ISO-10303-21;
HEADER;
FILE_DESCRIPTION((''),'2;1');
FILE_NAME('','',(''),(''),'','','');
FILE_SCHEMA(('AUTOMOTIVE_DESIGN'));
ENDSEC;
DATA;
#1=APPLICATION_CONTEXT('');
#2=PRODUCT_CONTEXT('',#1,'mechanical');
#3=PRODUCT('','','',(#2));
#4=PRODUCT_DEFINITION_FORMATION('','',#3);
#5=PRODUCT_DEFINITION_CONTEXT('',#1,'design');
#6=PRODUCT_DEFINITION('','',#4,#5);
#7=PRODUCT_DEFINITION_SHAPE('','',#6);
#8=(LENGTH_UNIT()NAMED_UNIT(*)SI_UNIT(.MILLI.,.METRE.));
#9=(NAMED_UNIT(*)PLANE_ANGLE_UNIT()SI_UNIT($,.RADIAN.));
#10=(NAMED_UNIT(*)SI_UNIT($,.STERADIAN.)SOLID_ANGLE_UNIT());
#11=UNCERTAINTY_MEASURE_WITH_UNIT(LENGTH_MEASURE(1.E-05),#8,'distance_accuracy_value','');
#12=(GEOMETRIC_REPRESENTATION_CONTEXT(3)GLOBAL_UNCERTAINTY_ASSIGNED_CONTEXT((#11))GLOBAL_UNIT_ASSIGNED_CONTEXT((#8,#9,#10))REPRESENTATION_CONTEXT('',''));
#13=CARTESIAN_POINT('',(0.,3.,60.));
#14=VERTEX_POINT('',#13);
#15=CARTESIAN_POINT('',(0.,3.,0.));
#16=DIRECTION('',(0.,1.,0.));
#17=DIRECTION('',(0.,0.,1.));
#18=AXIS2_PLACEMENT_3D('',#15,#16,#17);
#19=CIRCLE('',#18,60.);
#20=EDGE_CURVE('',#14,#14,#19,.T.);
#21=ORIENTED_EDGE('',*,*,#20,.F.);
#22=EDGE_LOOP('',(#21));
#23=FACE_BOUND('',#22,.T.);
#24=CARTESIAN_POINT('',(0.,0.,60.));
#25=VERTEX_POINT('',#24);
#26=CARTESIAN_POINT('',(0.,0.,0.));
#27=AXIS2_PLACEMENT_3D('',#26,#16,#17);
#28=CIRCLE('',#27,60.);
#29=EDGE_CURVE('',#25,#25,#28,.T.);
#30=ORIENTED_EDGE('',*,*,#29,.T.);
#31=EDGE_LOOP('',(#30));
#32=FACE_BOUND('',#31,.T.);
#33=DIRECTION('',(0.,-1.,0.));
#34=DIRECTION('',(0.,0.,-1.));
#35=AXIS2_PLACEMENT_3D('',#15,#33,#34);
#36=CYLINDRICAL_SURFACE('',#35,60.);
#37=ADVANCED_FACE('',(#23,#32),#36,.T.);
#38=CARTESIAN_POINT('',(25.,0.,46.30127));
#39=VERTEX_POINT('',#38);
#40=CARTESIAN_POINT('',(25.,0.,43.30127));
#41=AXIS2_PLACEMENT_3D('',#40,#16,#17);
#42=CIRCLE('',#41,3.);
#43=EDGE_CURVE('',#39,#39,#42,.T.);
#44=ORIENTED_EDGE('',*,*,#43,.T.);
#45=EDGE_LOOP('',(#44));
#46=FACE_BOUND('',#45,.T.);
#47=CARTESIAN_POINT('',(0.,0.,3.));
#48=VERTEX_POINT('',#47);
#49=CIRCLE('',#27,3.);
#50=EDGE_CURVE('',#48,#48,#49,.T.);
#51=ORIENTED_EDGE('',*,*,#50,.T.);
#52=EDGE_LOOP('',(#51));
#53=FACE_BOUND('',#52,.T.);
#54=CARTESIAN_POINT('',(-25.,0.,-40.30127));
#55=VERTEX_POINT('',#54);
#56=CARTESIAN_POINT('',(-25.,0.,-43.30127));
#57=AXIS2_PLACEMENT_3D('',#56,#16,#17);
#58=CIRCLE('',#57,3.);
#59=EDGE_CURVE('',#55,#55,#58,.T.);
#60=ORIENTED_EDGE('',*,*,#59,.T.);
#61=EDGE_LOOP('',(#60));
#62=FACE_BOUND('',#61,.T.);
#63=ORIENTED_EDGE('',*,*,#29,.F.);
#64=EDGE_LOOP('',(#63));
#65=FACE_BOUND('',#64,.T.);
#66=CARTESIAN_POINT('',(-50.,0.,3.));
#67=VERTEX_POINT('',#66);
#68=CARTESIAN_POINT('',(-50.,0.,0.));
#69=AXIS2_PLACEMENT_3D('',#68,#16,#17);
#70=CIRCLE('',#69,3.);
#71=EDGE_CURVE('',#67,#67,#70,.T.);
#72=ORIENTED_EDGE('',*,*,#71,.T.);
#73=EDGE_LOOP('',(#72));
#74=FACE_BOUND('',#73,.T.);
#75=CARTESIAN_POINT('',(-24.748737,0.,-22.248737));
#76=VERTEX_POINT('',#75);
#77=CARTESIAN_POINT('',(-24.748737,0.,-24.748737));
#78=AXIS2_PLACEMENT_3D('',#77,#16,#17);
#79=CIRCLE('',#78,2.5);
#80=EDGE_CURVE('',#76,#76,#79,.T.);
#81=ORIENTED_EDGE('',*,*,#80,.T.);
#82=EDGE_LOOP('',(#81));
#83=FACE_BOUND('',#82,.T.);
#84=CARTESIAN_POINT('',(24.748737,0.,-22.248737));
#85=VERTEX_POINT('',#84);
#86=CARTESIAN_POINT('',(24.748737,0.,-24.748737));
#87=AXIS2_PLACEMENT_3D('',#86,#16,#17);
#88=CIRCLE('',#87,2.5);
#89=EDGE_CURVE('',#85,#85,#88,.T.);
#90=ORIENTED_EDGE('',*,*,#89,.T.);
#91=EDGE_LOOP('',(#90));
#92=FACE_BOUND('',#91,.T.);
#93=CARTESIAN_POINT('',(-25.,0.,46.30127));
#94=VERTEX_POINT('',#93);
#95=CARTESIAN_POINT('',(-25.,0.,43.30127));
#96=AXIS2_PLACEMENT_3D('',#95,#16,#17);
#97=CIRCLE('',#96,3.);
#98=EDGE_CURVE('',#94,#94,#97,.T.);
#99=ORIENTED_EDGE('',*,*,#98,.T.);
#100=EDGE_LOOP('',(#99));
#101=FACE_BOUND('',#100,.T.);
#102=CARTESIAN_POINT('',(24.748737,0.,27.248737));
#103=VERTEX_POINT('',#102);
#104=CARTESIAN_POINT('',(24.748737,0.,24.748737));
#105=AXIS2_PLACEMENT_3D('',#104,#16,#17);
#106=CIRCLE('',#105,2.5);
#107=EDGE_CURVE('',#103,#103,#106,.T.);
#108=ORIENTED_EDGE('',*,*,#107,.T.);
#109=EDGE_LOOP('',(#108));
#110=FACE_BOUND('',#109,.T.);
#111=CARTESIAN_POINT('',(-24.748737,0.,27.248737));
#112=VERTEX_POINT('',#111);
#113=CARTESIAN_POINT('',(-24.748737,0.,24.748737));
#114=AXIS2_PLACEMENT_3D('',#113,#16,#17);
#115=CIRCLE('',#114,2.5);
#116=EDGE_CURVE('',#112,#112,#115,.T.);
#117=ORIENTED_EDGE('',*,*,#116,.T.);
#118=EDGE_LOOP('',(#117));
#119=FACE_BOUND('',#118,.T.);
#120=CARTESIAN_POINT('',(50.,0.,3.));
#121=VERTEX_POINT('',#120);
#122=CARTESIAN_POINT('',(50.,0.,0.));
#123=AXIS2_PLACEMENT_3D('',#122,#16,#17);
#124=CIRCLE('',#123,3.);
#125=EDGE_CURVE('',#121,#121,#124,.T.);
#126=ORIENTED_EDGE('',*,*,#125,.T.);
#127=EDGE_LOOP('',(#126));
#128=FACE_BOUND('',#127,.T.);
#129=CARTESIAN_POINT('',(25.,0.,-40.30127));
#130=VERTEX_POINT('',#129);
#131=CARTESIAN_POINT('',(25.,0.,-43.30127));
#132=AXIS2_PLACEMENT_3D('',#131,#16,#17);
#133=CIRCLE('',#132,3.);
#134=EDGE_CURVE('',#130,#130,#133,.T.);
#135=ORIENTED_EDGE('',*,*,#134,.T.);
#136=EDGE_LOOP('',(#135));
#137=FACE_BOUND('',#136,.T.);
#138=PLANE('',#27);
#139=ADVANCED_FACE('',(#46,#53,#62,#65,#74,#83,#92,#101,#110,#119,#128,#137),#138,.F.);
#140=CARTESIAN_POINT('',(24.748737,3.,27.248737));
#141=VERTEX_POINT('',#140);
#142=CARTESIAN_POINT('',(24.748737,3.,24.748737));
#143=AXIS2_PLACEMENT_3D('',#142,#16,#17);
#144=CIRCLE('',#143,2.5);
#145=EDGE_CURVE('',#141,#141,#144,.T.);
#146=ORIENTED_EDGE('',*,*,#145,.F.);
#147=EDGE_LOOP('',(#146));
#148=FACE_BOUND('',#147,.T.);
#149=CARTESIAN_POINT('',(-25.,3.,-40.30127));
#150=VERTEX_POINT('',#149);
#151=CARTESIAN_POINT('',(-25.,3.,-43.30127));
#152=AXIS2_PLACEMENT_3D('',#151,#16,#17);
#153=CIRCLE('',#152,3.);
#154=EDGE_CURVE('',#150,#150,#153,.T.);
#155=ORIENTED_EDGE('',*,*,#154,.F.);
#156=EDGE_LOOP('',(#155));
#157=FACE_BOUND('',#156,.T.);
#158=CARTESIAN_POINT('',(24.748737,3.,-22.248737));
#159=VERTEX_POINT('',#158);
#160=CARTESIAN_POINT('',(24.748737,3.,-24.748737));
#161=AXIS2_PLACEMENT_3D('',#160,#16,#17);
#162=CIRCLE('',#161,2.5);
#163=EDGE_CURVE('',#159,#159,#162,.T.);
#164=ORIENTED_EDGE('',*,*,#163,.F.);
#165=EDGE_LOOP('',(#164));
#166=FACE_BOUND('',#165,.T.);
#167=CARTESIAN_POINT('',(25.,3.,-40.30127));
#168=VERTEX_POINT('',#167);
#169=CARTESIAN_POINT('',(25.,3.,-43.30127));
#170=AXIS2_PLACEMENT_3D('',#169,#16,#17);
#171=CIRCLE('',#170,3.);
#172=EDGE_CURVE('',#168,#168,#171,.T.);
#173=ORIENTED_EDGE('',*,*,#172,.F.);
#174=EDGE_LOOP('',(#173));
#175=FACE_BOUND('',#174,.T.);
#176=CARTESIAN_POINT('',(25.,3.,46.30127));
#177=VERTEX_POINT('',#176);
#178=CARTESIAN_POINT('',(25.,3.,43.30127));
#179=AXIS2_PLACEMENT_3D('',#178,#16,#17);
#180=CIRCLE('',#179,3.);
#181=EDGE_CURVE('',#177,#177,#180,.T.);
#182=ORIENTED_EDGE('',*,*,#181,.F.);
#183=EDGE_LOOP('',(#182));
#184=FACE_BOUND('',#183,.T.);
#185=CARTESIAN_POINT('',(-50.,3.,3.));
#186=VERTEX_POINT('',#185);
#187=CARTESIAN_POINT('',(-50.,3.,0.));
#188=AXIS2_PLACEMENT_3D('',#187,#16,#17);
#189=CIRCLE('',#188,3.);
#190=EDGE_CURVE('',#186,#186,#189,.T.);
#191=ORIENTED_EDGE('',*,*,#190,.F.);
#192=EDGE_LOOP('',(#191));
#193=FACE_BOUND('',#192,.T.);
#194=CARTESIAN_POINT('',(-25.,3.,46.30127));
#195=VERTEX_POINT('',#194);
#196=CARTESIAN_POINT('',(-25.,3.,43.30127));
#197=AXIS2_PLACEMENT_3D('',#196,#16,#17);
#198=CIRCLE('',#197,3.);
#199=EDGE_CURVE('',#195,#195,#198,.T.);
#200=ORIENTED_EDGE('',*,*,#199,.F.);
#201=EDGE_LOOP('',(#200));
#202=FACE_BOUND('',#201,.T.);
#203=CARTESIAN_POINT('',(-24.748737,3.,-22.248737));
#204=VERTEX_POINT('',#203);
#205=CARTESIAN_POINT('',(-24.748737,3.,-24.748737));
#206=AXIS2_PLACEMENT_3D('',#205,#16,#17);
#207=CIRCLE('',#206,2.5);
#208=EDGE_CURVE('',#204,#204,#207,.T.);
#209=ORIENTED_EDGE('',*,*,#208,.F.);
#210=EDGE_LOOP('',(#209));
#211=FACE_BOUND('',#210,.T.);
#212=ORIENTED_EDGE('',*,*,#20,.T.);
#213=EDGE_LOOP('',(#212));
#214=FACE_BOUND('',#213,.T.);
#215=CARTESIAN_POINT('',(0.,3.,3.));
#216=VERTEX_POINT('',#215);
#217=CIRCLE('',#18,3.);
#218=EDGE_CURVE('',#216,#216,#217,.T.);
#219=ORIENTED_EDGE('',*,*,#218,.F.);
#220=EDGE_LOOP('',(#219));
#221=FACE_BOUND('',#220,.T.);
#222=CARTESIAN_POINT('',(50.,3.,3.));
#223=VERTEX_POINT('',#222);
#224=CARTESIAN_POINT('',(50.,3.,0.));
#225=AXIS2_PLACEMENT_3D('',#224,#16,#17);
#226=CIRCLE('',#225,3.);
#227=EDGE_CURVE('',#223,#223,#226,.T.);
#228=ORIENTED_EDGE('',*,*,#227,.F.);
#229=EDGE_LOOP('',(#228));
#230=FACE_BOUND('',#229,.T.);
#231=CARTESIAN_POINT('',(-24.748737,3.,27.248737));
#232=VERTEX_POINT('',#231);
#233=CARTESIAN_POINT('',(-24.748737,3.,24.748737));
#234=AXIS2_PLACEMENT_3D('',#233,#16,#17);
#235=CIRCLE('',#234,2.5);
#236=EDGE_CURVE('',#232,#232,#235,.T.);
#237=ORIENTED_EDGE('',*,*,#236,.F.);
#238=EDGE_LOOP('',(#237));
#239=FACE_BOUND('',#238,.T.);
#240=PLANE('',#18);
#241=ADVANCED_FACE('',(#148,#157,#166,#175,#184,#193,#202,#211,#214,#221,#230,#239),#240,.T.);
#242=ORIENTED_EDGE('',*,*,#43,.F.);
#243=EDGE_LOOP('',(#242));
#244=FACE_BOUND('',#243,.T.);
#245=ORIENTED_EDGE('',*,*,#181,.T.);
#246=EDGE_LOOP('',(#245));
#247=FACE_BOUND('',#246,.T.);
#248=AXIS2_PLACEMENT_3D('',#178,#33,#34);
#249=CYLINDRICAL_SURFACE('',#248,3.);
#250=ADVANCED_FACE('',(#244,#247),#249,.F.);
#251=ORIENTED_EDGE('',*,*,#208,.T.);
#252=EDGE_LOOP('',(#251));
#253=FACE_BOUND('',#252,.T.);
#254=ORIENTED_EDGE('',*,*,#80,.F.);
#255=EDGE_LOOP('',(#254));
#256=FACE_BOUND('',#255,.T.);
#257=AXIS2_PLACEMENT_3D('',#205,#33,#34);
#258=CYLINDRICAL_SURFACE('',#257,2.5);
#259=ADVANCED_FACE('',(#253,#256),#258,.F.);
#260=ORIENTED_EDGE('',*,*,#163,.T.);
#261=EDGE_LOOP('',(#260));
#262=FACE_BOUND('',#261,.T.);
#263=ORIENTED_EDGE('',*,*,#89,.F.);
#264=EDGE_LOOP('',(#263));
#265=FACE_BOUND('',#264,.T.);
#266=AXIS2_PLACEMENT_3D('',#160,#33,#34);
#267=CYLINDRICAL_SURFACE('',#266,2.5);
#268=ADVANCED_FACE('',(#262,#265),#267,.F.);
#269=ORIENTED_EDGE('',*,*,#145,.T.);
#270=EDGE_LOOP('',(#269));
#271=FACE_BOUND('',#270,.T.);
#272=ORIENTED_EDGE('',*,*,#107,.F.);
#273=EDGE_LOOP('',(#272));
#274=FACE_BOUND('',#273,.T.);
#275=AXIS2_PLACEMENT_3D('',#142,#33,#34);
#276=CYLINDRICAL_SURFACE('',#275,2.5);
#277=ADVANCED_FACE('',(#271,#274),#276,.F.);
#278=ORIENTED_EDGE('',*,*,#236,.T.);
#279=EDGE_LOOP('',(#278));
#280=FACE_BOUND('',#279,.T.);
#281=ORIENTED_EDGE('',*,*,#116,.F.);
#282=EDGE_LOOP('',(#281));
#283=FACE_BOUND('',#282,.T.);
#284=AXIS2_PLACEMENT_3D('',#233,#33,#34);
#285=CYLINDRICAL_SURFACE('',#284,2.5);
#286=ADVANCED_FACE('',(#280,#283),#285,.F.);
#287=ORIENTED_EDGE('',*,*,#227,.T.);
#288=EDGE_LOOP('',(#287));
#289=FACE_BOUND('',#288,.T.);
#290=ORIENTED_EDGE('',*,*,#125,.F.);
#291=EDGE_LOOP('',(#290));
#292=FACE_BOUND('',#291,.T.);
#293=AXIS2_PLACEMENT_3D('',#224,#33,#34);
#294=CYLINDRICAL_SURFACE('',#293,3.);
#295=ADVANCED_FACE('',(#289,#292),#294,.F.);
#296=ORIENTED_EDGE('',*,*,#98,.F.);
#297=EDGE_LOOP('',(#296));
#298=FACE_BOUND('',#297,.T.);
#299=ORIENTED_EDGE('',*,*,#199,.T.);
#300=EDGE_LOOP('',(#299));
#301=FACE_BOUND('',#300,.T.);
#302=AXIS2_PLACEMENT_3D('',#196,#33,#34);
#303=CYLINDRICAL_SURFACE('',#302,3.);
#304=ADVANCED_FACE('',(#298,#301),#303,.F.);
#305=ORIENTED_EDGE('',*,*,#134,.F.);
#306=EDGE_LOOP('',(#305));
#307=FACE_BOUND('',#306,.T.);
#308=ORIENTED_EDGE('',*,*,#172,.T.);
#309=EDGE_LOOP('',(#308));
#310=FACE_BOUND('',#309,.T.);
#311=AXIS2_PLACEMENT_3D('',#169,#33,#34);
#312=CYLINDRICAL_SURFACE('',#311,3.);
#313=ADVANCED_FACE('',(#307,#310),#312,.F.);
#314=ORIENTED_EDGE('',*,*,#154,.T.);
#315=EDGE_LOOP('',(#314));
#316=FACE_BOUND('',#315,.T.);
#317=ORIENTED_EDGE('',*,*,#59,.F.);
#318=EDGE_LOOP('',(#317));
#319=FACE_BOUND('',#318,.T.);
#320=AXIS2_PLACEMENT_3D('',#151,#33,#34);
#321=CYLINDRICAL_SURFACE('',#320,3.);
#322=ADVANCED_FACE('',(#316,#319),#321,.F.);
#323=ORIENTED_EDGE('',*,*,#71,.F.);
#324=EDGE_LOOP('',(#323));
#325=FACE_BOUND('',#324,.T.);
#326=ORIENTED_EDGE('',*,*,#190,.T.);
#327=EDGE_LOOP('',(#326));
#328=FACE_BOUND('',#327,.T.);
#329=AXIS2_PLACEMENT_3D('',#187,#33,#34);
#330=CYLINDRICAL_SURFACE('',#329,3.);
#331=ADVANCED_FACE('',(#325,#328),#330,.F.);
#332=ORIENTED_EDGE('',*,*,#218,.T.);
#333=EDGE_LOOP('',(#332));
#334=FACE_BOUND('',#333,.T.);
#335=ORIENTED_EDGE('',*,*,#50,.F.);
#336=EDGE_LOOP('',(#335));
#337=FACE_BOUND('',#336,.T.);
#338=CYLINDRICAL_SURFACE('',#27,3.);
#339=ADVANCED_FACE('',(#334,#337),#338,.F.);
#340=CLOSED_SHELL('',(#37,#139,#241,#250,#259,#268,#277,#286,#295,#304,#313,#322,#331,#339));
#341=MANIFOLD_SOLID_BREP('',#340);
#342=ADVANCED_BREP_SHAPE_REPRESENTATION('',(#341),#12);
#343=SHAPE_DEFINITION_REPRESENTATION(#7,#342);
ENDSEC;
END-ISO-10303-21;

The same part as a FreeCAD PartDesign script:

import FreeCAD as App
import Part
import Sketcher
from FreeCAD import Vector
Q = App.Units.Quantity

doc = App.newDocument("Part")
body = doc.addObject("PartDesign::Body", "Body")

# Sketch on XZ plane
sketch1 = body.newObject("Sketcher::SketchObject", "Sketch")
sketch1.AttachmentSupport = (doc.getObject("XZ_Plane"), [""])
sketch1.MapMode = "FlatFace"
sketch1.addGeometry([
    Part.Circle(Vector(0, 0, 0), Vector(0, 0, 1), 60),  # 0
    Part.Circle(Vector(-25, -43.3, 0), Vector(0, 0, 1), 3),  # 1
    Part.Circle(Vector(-24.7, -24.7, 0), Vector(0, 0, 1), 2.5),  # 2
    Part.Circle(Vector(-50, 0, 0), Vector(0, 0, 1), 3),  # 3
    Part.Circle(Vector(-24.7, 24.7, 0), Vector(0, 0, 1), 2.5),  # 4
    Part.Circle(Vector(-25, 43.3, 0), Vector(0, 0, 1), 3),  # 5
    Part.Circle(Vector(25, -43.3, 0), Vector(0, 0, 1), 3),  # 6
    Part.Circle(Vector(24.7, -24.7, 0), Vector(0, 0, 1), 2.5),  # 7
    Part.Circle(Vector(50, 0, 0), Vector(0, 0, 1), 3),  # 8
    Part.Circle(Vector(24.7, 24.7, 0), Vector(0, 0, 1), 2.5),  # 9
    Part.Circle(Vector(25, 43.3, 0), Vector(0, 0, 1), 3),  # 10
], False)
sketch1.addConstraint([
    Sketcher.Constraint("Coincident", 0, 3, -1, 1),
    Sketcher.Constraint("Equal", 1, 3),
    Sketcher.Constraint("Equal", 2, 4),
    Sketcher.Constraint("Equal", 3, 5),
    Sketcher.Constraint("Equal", 5, 6),
    Sketcher.Constraint("Equal", 4, 7),
    Sketcher.Constraint("Equal", 6, 8),
    Sketcher.Constraint("Equal", 7, 9),
    Sketcher.Constraint("Equal", 8, 10),
    Sketcher.Constraint("Symmetric", 5, 3, 6, 3, -1, 1),
    Sketcher.Constraint("Symmetric", 4, 3, 7, 3, -1, 1),
    Sketcher.Constraint("Symmetric", 3, 3, 8, 3, -1, 1),
    Sketcher.Constraint("Symmetric", 2, 3, 9, 3, -1, 1),
    Sketcher.Constraint("Symmetric", 1, 3, 10, 3, -1, 1),
    Sketcher.Constraint("Symmetric", 1, 3, 6, 3, -2),
    Sketcher.Constraint("Symmetric", 2, 3, 7, 3, -2),
    Sketcher.Constraint("PointOnObject", 3, 3, -1),
    Sketcher.Constraint("Diameter", 0, Q("120 mm")),
    Sketcher.Constraint("Diameter", 1, Q("6 mm")),
    Sketcher.Constraint("Diameter", 2, Q("5 mm")),
    Sketcher.Constraint("DistanceX", 1, 3, -1, 1, Q("25 mm")),
    Sketcher.Constraint("DistanceX", 3, 3, -1, 1, Q("50 mm")),
    Sketcher.Constraint("DistanceY", 1, 3, -1, 1, Q("43.30127 mm")),
    Sketcher.Constraint("DistanceX", 2, 3, -1, 1, Q("24.748737 mm")),
    Sketcher.Constraint("DistanceY", 2, 3, -1, 1, Q("24.748737 mm")),
])
pad1 = body.newObject("PartDesign::Pad", "Pad")
pad1.Profile = sketch1
pad1.Length = 3
pad1.Reversed = True

# Sketch on XZ plane
sketch2 = body.newObject("Sketcher::SketchObject", "Sketch001")
sketch2.AttachmentSupport = (doc.getObject("XZ_Plane"), [""])
sketch2.MapMode = "FlatFace"
sketch2.AttachmentOffset = App.Placement(Vector(0, 0, -3), App.Rotation())
sketch2.addGeometry(Part.Circle(Vector(0, 0, 0), Vector(0, 0, 1), 3), False)
sketch2.addConstraint([
    Sketcher.Constraint("Coincident", 0, 3, -1, 1),
    Sketcher.Constraint("Diameter", 0, Q("6 mm")),
])
pocket1 = body.newObject("PartDesign::Pocket", "Pocket")
pocket1.Profile = sketch2
pocket1.Type = "ThroughAll"
pocket1.Midplane = True

doc.recompute()
